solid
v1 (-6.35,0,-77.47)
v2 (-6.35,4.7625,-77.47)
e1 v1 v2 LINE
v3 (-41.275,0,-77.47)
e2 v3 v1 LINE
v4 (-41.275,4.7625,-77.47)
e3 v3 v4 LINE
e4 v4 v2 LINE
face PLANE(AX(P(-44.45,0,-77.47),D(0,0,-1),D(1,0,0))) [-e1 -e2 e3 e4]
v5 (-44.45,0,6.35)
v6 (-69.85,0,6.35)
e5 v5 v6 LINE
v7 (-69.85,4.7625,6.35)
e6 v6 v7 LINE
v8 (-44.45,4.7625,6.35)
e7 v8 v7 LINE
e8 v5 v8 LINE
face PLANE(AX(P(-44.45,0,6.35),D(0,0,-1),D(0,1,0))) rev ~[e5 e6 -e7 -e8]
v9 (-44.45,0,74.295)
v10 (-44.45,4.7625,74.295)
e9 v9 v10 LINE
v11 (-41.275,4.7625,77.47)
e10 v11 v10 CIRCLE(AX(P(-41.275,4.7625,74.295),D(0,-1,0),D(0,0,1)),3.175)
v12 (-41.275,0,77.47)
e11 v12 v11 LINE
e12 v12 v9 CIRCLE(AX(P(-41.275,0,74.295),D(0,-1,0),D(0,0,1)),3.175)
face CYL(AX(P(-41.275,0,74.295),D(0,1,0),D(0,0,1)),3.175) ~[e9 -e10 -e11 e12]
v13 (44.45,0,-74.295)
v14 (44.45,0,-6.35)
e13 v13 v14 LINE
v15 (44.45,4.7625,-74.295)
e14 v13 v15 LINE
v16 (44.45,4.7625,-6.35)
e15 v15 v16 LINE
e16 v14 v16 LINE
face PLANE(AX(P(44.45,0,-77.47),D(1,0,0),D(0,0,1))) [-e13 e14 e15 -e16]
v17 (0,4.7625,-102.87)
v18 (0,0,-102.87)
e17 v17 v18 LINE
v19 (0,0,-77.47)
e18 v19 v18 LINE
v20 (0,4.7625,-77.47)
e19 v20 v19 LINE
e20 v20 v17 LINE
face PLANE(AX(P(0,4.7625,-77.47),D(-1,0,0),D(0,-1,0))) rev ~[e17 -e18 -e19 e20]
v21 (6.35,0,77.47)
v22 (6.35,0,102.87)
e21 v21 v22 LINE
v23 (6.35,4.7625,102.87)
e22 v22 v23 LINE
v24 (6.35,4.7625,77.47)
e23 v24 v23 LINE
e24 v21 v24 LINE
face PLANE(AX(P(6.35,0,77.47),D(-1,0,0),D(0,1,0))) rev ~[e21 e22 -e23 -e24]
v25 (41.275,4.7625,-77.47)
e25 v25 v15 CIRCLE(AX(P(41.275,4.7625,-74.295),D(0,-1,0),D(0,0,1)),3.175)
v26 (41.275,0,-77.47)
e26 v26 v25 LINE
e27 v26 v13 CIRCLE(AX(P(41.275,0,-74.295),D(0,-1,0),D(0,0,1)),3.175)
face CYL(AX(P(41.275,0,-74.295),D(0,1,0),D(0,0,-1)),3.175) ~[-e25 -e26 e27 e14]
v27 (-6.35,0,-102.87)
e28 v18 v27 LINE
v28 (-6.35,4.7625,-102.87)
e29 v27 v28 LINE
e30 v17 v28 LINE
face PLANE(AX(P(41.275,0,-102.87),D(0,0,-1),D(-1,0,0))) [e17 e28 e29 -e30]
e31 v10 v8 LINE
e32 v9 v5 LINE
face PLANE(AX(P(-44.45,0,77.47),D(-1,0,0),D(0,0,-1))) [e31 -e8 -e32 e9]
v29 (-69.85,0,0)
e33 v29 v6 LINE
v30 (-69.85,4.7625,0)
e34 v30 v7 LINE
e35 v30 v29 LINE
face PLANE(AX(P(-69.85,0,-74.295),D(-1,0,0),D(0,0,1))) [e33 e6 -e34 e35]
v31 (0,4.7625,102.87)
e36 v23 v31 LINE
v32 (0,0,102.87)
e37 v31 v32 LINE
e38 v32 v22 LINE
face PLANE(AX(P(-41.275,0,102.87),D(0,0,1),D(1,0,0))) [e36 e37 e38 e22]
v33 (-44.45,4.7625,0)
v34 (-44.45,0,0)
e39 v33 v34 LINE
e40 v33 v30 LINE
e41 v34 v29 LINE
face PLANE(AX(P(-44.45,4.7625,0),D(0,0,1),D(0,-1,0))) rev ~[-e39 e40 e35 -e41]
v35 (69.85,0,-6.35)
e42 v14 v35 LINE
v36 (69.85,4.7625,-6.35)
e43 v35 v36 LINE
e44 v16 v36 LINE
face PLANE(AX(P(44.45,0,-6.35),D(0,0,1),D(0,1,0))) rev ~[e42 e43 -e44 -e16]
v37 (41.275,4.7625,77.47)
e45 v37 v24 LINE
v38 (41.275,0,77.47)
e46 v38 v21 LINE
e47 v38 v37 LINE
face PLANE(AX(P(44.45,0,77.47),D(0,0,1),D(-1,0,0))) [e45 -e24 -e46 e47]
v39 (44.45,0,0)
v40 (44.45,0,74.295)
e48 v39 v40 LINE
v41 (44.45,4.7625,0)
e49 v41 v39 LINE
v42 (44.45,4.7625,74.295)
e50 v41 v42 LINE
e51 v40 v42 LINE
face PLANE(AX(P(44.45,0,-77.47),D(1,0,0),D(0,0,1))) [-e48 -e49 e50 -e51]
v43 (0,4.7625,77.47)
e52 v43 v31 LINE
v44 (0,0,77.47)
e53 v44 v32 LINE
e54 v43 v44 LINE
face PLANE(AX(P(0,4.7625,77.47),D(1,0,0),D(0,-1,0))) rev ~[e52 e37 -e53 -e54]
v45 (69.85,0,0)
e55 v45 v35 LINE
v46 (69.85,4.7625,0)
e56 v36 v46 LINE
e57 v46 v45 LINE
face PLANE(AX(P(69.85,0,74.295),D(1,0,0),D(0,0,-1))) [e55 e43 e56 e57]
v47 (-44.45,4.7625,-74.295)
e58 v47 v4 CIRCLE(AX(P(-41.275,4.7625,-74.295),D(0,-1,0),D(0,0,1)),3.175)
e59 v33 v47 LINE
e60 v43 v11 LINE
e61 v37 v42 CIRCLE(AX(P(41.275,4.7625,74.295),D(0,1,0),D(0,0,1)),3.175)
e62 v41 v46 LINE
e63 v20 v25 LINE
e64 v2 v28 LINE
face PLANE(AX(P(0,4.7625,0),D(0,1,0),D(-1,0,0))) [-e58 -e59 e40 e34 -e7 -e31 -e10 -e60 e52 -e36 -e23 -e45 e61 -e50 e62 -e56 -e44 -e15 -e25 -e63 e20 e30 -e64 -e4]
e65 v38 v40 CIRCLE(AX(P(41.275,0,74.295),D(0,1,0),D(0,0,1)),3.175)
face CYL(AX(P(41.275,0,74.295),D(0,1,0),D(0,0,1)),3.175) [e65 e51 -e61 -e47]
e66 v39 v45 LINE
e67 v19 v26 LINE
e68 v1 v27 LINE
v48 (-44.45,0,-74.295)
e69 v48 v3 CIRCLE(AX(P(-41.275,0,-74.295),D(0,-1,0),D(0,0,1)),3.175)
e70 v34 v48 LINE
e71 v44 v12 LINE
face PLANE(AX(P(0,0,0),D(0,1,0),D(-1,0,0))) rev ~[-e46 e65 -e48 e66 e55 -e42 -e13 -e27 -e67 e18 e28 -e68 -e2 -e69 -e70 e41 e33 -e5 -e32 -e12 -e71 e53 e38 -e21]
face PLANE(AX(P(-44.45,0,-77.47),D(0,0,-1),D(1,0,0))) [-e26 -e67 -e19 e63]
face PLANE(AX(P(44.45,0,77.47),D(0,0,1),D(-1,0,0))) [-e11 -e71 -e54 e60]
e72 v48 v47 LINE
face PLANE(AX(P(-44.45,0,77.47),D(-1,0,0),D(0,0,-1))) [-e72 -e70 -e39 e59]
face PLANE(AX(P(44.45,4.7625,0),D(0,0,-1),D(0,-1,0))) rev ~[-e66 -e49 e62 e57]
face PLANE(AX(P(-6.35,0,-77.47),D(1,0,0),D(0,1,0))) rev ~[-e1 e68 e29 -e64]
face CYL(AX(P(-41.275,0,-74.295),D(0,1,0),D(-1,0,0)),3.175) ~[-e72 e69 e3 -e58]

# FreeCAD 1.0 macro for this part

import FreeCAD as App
import Part
import Sketcher
Q = App.Units.Quantity


def edges_at(feature, points):
    """Names of the edges that pass closest to the given points."""
    edges = feature.Shape.Edges
    near = lambda p: min(range(len(edges)), key=lambda i: edges[i].distToShape(Part.Vertex(*p))[0])
    return sorted({f"Edge{near(p) + 1}" for p in points})

doc = App.newDocument("Part")
body = doc.addObject("PartDesign::Body", "Body")

sketch1 = doc.addObject("Sketcher::SketchObject", "Sketch")
body.addObject(sketch1)
sketch1.AttachmentSupport = (doc.XZ_Plane, [""])
sketch1.MapMode = "FlatFace"
sketch1.addGeometry([
    Part.LineSegment(App.Vector(-44, 77, 0), App.Vector(44, 77, 0)),
    Part.LineSegment(App.Vector(44, 77, 0), App.Vector(44, -77, 0)),
    Part.LineSegment(App.Vector(44, -77, 0), App.Vector(-44, -77, 0)),
    Part.LineSegment(App.Vector(-44, -77, 0), App.Vector(-44, 77, 0)),
], False)
sketch1.addConstraint([
    Sketcher.Constraint("Coincident", 0, 2, 1, 1),
    Sketcher.Constraint("Coincident", 1, 2, 2, 1),
    Sketcher.Constraint("Coincident", 2, 2, 3, 1),
    Sketcher.Constraint("Coincident", 3, 2, 0, 1),
    Sketcher.Constraint("Horizontal", 0),
    Sketcher.Constraint("Vertical", 1),
    Sketcher.Constraint("Horizontal", 2),
    Sketcher.Constraint("Vertical", 3),
    Sketcher.Constraint("Symmetric", 0, 2, 2, 2, -1, 1),
    Sketcher.Constraint("DistanceX", 0, 1, 0, 2, Q("3.5 in")),
    Sketcher.Constraint("DistanceY", 1, 2, 1, 1, Q("6.1 in")),
])
pad1 = doc.addObject("PartDesign::Pad", "Pad")
body.addObject(pad1)
pad1.Profile = sketch1
pad1.Length = Q("0.1875 in")
pad1.Reversed = True
doc.recompute()

fillet = doc.addObject("PartDesign::Fillet", "Fillet")
body.addObject(fillet)
fillet.Base = (pad1, edges_at(pad1, [
    (44.45, 2.381, 77.47),
    (-44.45, 2.381, 77.47),
    (44.45, 2.381, -77.47),
    (-44.45, 2.381, -77.47),
]))
fillet.Radius = Q("0.125 in")

sketch2 = doc.addObject("Sketcher::SketchObject", "Sketch001")
body.addObject(sketch2)
sketch2.AttachmentSupport = (doc.YZ_Plane, [""])
sketch2.MapMode = "FlatFace"
sketch2.AttachmentOffset = App.Placement(App.Vector(0, 0, 1.75 * 25.4), App.Rotation())
sketch2.addGeometry([
    Part.LineSegment(App.Vector(0, -6.3, 0), App.Vector(4.8, -6.3, 0)),
    Part.LineSegment(App.Vector(4.8, -6.3, 0), App.Vector(4.8, 0, 0)),
    Part.LineSegment(App.Vector(4.8, 0, 0), App.Vector(0, 0, 0)),
    Part.LineSegment(App.Vector(0, 0, 0), App.Vector(0, -6.3, 0)),
], False)
sketch2.addConstraint([
    Sketcher.Constraint("Coincident", 0, 2, 1, 1),
    Sketcher.Constraint("Coincident", 1, 2, 2, 1),
    Sketcher.Constraint("Coincident", 2, 2, 3, 1),
    Sketcher.Constraint("Coincident", 3, 2, 0, 1),
    Sketcher.Constraint("Horizontal", 0),
    Sketcher.Constraint("Vertical", 1),
    Sketcher.Constraint("Horizontal", 2),
    Sketcher.Constraint("Vertical", 3),
    Sketcher.Constraint("Coincident", 2, 2, -1, 1),
    Sketcher.Constraint("DistanceY", 1, 1, 1, 2, Q("0.25 in")),
    Sketcher.Constraint("DistanceX", 0, 1, 0, 2, Q("0.1875 in")),
])
pad2 = doc.addObject("PartDesign::Pad", "Pad001")
body.addObject(pad2)
pad2.Profile = sketch2
pad2.Length = Q("1 in")

sketch3 = doc.addObject("Sketcher::SketchObject", "Sketch002")
body.addObject(sketch3)
sketch3.AttachmentSupport = (doc.XY_Plane, [""])
sketch3.MapMode = "FlatFace"
sketch3.AttachmentOffset = App.Placement(App.Vector(0, 0, 3.05 * 25.4), App.Rotation())
sketch3.addGeometry([
    Part.LineSegment(App.Vector(6.3, 0, 0), App.Vector(6.3, 4.8, 0)),
    Part.LineSegment(App.Vector(6.3, 4.8, 0), App.Vector(0, 4.8, 0)),
    Part.LineSegment(App.Vector(0, 4.8, 0), App.Vector(0, 0, 0)),
    Part.LineSegment(App.Vector(0, 0, 0), App.Vector(6.3, 0, 0)),
], False)
sketch3.addConstraint([
    Sketcher.Constraint("Coincident", 0, 2, 1, 1),
    Sketcher.Constraint("Coincident", 1, 2, 2, 1),
    Sketcher.Constraint("Coincident", 2, 2, 3, 1),
    Sketcher.Constraint("Coincident", 3, 2, 0, 1),
    Sketcher.Constraint("Vertical", 0),
    Sketcher.Constraint("Horizontal", 1),
    Sketcher.Constraint("Vertical", 2),
    Sketcher.Constraint("Horizontal", 3),
    Sketcher.Constraint("Coincident", 2, 2, -1, 1),
    Sketcher.Constraint("DistanceX", 1, 2, 1, 1, Q("0.25 in")),
    Sketcher.Constraint("DistanceY", 0, 1, 0, 2, Q("0.1875 in")),
])
pad3 = doc.addObject("PartDesign::Pad", "Pad002")
body.addObject(pad3)
pad3.Profile = sketch3
pad3.Length = Q("1 in")

sketch4 = doc.addObject("Sketcher::SketchObject", "Sketch003")
body.addObject(sketch4)
sketch4.AttachmentSupport = (doc.YZ_Plane, [""])
sketch4.MapMode = "FlatFace"
sketch4.AttachmentOffset = App.Placement(App.Vector(0, 0, -1.75 * 25.4), App.Rotation())
sketch4.addGeometry([
    Part.LineSegment(App.Vector(4.8, 6.3, 0), App.Vector(4.8, 0, 0)),
    Part.LineSegment(App.Vector(4.8, 0, 0), App.Vector(0, 0, 0)),
    Part.LineSegment(App.Vector(0, 0, 0), App.Vector(0, 6.3, 0)),
    Part.LineSegment(App.Vector(0, 6.3, 0), App.Vector(4.8, 6.3, 0)),
], False)
sketch4.addConstraint([
    Sketcher.Constraint("Coincident", 0, 2, 1, 1),
    Sketcher.Constraint("Coincident", 1, 2, 2, 1),
    Sketcher.Constraint("Coincident", 2, 2, 3, 1),
    Sketcher.Constraint("Coincident", 3, 2, 0, 1),
    Sketcher.Constraint("Vertical", 0),
    Sketcher.Constraint("Horizontal", 1),
    Sketcher.Constraint("Vertical", 2),
    Sketcher.Constraint("Horizontal", 3),
    Sketcher.Constraint("Coincident", 1, 2, -1, 1),
    Sketcher.Constraint("DistanceY", 0, 2, 0, 1, Q("0.25 in")),
    Sketcher.Constraint("DistanceX", 1, 2, 1, 1, Q("0.1875 in")),
])
pad4 = doc.addObject("PartDesign::Pad", "Pad003")
body.addObject(pad4)
pad4.Profile = sketch4
pad4.Length = Q("1 in")
pad4.Reversed = True

sketch5 = doc.addObject("Sketcher::SketchObject", "Sketch004")
body.addObject(sketch5)
sketch5.AttachmentSupport = (doc.XY_Plane, [""])
sketch5.MapMode = "FlatFace"
sketch5.AttachmentOffset = App.Placement(App.Vector(0, 0, -3.05 * 25.4), App.Rotation())
sketch5.addGeometry([
    Part.LineSegment(App.Vector(-6.3, 4.8, 0), App.Vector(0, 4.8, 0)),
    Part.LineSegment(App.Vector(0, 4.8, 0), App.Vector(0, 0, 0)),
    Part.LineSegment(App.Vector(0, 0, 0), App.Vector(-6.3, 0, 0)),
    Part.LineSegment(App.Vector(-6.3, 0, 0), App.Vector(-6.3, 4.8, 0)),
], False)
sketch5.addConstraint([
    Sketcher.Constraint("Coincident", 0, 2, 1, 1),
    Sketcher.Constraint("Coincident", 1, 2, 2, 1),
    Sketcher.Constraint("Coincident", 2, 2, 3, 1),
    Sketcher.Constraint("Coincident", 3, 2, 0, 1),
    Sketcher.Constraint("Horizontal", 0),
    Sketcher.Constraint("Vertical", 1),
    Sketcher.Constraint("Horizontal", 2),
    Sketcher.Constraint("Vertical", 3),
    Sketcher.Constraint("Coincident", 1, 2, -1, 1),
    Sketcher.Constraint("DistanceX", 0, 1, 0, 2, Q("0.25 in")),
    Sketcher.Constraint("DistanceY", 1, 2, 1, 1, Q("0.1875 in")),
])
pad5 = doc.addObject("PartDesign::Pad", "Pad004")
body.addObject(pad5)
pad5.Profile = sketch5
pad5.Length = Q("1 in")
pad5.Reversed = True

doc.recompute()
